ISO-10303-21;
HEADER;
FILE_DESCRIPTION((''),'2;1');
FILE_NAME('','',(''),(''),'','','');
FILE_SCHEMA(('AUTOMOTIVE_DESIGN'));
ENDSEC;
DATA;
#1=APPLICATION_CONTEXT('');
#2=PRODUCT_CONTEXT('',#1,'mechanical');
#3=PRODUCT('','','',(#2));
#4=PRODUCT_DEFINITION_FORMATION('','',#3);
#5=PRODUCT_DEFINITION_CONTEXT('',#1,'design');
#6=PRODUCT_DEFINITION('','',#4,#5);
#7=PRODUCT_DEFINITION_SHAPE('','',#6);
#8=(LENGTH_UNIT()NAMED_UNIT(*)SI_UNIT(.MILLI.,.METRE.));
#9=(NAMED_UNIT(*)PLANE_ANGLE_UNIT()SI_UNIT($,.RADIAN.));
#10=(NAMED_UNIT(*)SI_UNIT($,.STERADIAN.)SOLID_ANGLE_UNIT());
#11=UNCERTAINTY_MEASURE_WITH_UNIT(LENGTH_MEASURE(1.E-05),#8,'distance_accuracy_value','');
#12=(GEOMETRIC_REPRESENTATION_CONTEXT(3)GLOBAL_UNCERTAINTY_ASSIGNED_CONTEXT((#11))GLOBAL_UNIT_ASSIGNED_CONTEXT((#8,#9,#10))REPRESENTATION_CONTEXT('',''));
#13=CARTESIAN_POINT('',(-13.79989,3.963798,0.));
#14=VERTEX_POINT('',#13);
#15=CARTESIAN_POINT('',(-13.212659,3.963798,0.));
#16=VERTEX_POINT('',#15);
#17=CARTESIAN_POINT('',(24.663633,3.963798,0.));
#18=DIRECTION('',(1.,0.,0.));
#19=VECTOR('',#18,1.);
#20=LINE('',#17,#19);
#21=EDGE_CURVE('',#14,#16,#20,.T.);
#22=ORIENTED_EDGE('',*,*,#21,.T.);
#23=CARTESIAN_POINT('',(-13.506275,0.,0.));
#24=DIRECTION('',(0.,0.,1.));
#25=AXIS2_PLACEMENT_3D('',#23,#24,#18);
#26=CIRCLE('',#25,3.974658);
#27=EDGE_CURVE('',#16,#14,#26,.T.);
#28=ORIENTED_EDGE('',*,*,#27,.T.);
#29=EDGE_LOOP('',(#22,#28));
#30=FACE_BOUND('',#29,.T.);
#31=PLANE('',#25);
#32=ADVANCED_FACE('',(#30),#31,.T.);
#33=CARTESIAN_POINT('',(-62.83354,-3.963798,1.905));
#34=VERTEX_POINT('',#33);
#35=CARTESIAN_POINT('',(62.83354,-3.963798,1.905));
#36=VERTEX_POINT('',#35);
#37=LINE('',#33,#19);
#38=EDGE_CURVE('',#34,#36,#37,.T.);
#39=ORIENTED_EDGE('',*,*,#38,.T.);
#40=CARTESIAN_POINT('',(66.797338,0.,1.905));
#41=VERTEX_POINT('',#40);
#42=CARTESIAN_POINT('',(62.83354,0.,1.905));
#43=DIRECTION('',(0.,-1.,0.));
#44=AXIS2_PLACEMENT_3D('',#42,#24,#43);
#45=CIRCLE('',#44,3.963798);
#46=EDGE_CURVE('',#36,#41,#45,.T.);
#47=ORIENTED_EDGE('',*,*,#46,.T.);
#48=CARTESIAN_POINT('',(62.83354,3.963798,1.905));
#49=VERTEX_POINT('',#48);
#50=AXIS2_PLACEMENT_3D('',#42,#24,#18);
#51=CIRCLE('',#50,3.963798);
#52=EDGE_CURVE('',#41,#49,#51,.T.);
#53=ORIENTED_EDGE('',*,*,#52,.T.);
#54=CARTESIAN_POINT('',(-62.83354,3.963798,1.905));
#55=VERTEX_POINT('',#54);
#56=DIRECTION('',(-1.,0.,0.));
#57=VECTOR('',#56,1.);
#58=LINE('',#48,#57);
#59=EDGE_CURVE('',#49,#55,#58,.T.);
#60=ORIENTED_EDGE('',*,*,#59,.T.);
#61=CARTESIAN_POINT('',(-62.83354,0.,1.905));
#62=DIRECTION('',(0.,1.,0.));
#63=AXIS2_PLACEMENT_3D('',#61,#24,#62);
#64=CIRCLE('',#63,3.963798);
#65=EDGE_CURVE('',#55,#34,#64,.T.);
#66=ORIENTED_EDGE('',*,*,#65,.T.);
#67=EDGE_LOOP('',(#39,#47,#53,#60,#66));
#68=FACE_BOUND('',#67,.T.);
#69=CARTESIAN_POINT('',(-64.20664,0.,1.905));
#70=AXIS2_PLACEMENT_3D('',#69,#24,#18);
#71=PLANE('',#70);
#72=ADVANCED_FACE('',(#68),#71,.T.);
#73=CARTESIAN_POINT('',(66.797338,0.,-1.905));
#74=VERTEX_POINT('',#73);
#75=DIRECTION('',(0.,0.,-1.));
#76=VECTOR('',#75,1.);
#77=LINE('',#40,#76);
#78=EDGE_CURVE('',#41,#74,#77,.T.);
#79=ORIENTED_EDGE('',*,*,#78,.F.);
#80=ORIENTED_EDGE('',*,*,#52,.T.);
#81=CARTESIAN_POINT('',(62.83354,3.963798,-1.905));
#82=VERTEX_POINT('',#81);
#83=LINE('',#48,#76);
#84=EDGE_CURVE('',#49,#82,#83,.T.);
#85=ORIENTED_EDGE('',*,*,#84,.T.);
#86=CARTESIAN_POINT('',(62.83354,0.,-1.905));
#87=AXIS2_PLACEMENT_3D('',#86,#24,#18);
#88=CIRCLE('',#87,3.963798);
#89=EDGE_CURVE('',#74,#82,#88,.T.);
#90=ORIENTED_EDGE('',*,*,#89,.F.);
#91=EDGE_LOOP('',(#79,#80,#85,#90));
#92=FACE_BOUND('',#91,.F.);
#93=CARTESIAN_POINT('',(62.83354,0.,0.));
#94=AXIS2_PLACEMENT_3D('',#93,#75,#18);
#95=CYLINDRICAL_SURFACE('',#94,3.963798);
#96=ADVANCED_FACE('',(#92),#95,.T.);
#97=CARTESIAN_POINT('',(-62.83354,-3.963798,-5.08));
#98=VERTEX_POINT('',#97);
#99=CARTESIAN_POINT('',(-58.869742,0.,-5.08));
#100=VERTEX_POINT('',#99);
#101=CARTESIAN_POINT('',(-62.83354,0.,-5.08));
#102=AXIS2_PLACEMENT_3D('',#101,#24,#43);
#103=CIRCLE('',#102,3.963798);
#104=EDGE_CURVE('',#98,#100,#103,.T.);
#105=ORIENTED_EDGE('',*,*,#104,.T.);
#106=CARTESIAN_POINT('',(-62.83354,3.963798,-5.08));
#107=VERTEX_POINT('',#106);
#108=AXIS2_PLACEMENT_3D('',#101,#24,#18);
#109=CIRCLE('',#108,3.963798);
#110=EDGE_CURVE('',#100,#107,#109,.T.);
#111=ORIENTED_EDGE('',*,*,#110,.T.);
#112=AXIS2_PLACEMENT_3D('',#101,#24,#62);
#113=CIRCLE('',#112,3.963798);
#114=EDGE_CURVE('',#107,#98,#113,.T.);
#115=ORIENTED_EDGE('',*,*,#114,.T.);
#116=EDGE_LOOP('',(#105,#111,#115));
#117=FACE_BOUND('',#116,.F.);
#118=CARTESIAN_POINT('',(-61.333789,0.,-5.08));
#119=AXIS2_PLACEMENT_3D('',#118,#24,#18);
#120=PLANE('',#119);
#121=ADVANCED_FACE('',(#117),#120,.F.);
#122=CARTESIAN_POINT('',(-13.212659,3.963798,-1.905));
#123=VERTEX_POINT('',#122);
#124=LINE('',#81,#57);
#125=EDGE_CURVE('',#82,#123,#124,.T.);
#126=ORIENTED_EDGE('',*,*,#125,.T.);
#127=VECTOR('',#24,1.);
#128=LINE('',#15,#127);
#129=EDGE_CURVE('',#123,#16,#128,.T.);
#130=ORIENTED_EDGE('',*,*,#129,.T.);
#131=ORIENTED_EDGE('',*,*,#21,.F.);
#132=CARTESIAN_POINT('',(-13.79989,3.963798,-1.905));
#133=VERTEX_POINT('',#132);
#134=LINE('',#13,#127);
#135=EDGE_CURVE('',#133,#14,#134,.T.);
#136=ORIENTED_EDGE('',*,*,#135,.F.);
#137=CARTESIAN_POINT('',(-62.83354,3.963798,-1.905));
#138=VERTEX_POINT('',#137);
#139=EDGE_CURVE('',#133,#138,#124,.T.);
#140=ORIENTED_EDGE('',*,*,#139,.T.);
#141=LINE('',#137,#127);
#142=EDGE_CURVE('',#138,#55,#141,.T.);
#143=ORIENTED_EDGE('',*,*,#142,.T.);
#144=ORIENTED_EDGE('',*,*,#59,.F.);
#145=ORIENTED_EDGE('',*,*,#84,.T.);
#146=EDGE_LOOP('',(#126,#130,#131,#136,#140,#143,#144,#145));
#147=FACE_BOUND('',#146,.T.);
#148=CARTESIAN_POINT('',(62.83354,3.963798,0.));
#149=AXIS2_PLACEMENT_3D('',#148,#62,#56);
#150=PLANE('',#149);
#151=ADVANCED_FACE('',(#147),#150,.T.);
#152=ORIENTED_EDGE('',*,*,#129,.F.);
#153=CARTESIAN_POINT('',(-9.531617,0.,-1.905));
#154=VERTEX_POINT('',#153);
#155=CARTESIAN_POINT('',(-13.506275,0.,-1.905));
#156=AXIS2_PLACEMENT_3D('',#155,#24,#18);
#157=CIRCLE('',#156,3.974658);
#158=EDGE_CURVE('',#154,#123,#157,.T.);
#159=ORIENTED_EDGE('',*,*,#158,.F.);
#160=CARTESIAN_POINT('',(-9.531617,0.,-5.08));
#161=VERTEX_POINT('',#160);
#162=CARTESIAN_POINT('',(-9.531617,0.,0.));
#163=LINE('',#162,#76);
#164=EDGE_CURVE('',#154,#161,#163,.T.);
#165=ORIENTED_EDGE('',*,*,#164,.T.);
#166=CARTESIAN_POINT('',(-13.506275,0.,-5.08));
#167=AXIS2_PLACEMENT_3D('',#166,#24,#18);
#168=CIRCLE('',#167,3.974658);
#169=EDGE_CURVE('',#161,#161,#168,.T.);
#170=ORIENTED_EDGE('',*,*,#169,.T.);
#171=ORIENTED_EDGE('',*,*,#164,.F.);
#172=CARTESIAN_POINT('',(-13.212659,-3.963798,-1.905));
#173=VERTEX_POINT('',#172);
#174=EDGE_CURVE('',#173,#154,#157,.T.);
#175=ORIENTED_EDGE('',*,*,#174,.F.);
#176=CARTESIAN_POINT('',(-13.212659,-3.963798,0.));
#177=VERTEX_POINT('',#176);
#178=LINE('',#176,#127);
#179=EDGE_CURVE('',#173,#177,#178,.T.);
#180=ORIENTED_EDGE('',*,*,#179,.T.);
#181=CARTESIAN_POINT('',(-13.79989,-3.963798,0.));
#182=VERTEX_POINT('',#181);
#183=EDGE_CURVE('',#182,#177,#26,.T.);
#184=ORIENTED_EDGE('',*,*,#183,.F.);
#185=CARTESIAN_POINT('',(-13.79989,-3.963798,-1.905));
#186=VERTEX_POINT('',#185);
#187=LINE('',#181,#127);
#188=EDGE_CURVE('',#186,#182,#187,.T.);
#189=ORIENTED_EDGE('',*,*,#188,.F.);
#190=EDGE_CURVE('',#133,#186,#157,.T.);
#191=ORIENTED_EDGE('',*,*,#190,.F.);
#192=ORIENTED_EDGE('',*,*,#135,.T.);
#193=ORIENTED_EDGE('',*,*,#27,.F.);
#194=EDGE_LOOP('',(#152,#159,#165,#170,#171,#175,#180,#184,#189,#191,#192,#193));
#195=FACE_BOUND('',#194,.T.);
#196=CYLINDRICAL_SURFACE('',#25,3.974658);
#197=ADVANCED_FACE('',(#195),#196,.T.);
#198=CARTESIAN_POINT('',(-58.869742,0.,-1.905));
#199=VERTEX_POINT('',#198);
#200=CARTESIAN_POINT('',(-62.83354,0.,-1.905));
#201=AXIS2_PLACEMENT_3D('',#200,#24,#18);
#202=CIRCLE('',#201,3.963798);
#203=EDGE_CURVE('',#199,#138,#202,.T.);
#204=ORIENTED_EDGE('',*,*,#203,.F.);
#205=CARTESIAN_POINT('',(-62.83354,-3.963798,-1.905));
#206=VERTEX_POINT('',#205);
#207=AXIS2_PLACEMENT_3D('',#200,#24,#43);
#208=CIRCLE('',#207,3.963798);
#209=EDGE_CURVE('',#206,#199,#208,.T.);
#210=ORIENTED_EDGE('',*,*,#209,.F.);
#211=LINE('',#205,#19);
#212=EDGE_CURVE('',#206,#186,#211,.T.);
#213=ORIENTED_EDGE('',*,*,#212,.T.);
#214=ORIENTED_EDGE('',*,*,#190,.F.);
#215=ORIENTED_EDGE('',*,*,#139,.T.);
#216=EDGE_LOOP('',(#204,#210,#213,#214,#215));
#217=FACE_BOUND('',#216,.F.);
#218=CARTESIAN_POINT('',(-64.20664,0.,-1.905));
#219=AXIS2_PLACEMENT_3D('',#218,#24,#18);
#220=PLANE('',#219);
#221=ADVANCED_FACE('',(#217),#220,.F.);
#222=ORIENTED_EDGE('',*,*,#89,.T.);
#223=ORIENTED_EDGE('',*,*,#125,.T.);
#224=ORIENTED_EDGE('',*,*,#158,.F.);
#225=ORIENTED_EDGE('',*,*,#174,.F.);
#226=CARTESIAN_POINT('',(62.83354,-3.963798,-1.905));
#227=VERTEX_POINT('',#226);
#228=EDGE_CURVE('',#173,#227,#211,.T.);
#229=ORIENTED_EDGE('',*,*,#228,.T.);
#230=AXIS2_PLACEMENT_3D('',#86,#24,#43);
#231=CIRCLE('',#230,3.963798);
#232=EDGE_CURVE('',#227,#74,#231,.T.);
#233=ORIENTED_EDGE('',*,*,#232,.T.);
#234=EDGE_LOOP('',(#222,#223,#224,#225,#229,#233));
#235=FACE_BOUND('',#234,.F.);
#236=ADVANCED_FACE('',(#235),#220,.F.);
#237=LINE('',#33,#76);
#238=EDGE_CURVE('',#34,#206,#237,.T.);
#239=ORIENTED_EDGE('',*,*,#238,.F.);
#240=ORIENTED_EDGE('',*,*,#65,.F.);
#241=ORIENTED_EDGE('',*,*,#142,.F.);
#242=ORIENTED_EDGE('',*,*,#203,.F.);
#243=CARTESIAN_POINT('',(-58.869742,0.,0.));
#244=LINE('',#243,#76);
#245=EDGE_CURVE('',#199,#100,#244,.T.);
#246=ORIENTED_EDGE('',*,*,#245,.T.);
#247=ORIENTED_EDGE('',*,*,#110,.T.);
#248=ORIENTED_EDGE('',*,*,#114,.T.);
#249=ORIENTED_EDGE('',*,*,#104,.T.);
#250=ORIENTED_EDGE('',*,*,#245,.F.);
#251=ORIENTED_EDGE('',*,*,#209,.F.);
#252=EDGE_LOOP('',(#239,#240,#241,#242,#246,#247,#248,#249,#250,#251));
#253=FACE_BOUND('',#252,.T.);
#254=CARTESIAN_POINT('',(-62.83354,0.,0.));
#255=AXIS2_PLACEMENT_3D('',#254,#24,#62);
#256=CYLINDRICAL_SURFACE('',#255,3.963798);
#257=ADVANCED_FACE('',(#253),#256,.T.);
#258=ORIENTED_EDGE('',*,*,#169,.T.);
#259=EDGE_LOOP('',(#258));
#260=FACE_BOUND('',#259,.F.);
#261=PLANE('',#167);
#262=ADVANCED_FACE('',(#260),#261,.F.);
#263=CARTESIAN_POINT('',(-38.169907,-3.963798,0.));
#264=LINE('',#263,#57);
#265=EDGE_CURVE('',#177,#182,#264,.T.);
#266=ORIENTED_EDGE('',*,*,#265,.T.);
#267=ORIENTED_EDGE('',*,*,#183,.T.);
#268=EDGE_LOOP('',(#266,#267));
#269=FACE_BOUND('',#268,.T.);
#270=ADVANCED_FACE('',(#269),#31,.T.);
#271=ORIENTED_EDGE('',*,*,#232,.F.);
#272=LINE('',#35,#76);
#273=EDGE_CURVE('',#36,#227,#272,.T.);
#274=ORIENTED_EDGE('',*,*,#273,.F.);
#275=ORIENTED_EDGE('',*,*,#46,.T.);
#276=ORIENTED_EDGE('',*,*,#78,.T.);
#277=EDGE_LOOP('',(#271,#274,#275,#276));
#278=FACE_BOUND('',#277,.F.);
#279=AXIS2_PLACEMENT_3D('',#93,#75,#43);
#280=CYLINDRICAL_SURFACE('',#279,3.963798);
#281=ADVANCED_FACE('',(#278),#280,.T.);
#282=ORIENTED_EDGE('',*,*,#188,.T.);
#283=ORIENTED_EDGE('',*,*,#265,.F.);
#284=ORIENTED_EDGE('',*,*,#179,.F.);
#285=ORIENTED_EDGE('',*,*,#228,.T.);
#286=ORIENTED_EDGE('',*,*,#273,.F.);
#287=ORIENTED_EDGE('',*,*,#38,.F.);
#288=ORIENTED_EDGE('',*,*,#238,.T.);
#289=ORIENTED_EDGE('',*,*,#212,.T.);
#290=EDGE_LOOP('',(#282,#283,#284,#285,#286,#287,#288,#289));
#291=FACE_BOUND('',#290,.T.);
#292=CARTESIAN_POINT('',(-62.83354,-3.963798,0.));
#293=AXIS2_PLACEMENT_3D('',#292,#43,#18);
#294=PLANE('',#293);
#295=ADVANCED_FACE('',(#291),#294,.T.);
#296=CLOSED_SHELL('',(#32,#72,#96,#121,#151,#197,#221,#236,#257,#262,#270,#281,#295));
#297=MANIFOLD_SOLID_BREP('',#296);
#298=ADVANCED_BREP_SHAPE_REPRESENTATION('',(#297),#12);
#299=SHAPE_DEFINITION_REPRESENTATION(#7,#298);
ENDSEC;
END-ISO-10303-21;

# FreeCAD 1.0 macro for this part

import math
import FreeCAD as App
import Part
import Sketcher

V = App.Vector
Q = App.Units.Quantity

doc = App.newDocument("Part")
body = doc.addObject("PartDesign::Body", "Body")

# Sketch on XY plane
sketch1 = body.newObject("Sketcher::SketchObject", "Sketch")
sketch1.AttachmentSupport = (doc.getObject("XY_Plane"), [""])
sketch1.MapMode = "FlatFace"
sketch1.addGeometry(Part.ArcOfCircle(Part.Circle(V(-62.8, 0, 0), V(0, 0, 1), 4), math.radians(90), math.radians(270)), False)
sketch1.addGeometry(Part.LineSegment(V(-62.8, -4, 0), V(62.8, -4, 0)), False)
sketch1.addGeometry(Part.ArcOfCircle(Part.Circle(V(62.8, 0, 0), V(0, 0, 1), 4), math.radians(-90), math.radians(0)), False)
sketch1.addGeometry(Part.ArcOfCircle(Part.Circle(V(62.8, 0, 0), V(0, 0, 1), 4), math.radians(0), math.radians(90)), False)
sketch1.addGeometry(Part.LineSegment(V(62.8, 4, 0), V(-62.8, 4, 0)), False)
sketch1.addConstraint(Sketcher.Constraint("Tangent", 0, 2, 1, 1))
sketch1.addConstraint(Sketcher.Constraint("Tangent", 1, 2, 2, 1))
sketch1.addConstraint(Sketcher.Constraint("Tangent", 2, 2, 3, 1))
sketch1.addConstraint(Sketcher.Constraint("Tangent", 3, 2, 4, 1))
sketch1.addConstraint(Sketcher.Constraint("Tangent", 4, 2, 0, 1))
sketch1.addConstraint(Sketcher.Constraint("Horizontal", 1))
sketch1.addConstraint(Sketcher.Constraint("Horizontal", 4))
sketch1.addConstraint(Sketcher.Constraint("Equal", 0, 2))
sketch1.addConstraint(Sketcher.Constraint("Symmetric", 0, 3, 2, 3, -1, 1))
sketch1.addConstraint(Sketcher.Constraint("PointOnObject", 2, 2, -1))
sketch1.addConstraint(Sketcher.Constraint("Radius", 0, Q("3.963798 mm")))
sketch1.addConstraint(Sketcher.Constraint("DistanceX", 1, 1, 1, 2, Q("125.66708 mm")))
pad1 = body.newObject("PartDesign::Pad", "Pad")
pad1.Profile = sketch1
pad1.Length = Q("0.15 in")
pad1.Midplane = True

# Sketch on XY plane
sketch2 = body.newObject("Sketcher::SketchObject", "Sketch001")
sketch2.AttachmentSupport = (doc.getObject("XY_Plane"), [""])
sketch2.MapMode = "FlatFace"
sketch2.addGeometry(Part.Circle(V(-13.5, 0, 0), V(0, 0, 1), 4), False)
sketch2.addGeometry(Part.ArcOfCircle(Part.Circle(V(-62.8, 0, 0), V(0, 0, 1), 4), math.radians(0), math.radians(90)), False)
sketch2.addGeometry(Part.ArcOfCircle(Part.Circle(V(-62.8, 0, 0), V(0, 0, 1), 4), math.radians(90), math.radians(270)), False)
sketch2.addGeometry(Part.ArcOfCircle(Part.Circle(V(-62.8, 0, 0), V(0, 0, 1), 4), math.radians(-90), math.radians(0)), False)
sketch2.addConstraint(Sketcher.Constraint("Tangent", 1, 2, 2, 1))
sketch2.addConstraint(Sketcher.Constraint("Tangent", 2, 2, 3, 1))
sketch2.addConstraint(Sketcher.Constraint("Tangent", 3, 2, 1, 1))
sketch2.addConstraint(Sketcher.Constraint("Symmetric", 1, 2, 2, 2, -1))
sketch2.addConstraint(Sketcher.Constraint("PointOnObject", 0, 3, -1))
sketch2.addConstraint(Sketcher.Constraint("PointOnObject", 3, 2, -1))
sketch2.addConstraint(Sketcher.Constraint("Vertical", 3, 3, 1, 2))
sketch2.addConstraint(Sketcher.Constraint("Radius", 1, Q("3.963798 mm")))
sketch2.addConstraint(Sketcher.Constraint("Diameter", 0, Q("7.949316 mm")))
sketch2.addConstraint(Sketcher.Constraint("DistanceX", 1, 3, -1, 1, Q("62.83354 mm")))
sketch2.addConstraint(Sketcher.Constraint("DistanceX", 0, 3, -1, 1, Q("13.506275 mm")))
pad2 = body.newObject("PartDesign::Pad", "Pad001")
pad2.Profile = sketch2
pad2.Length = Q("0.2 in")
pad2.Reversed = True

doc.recompute()
